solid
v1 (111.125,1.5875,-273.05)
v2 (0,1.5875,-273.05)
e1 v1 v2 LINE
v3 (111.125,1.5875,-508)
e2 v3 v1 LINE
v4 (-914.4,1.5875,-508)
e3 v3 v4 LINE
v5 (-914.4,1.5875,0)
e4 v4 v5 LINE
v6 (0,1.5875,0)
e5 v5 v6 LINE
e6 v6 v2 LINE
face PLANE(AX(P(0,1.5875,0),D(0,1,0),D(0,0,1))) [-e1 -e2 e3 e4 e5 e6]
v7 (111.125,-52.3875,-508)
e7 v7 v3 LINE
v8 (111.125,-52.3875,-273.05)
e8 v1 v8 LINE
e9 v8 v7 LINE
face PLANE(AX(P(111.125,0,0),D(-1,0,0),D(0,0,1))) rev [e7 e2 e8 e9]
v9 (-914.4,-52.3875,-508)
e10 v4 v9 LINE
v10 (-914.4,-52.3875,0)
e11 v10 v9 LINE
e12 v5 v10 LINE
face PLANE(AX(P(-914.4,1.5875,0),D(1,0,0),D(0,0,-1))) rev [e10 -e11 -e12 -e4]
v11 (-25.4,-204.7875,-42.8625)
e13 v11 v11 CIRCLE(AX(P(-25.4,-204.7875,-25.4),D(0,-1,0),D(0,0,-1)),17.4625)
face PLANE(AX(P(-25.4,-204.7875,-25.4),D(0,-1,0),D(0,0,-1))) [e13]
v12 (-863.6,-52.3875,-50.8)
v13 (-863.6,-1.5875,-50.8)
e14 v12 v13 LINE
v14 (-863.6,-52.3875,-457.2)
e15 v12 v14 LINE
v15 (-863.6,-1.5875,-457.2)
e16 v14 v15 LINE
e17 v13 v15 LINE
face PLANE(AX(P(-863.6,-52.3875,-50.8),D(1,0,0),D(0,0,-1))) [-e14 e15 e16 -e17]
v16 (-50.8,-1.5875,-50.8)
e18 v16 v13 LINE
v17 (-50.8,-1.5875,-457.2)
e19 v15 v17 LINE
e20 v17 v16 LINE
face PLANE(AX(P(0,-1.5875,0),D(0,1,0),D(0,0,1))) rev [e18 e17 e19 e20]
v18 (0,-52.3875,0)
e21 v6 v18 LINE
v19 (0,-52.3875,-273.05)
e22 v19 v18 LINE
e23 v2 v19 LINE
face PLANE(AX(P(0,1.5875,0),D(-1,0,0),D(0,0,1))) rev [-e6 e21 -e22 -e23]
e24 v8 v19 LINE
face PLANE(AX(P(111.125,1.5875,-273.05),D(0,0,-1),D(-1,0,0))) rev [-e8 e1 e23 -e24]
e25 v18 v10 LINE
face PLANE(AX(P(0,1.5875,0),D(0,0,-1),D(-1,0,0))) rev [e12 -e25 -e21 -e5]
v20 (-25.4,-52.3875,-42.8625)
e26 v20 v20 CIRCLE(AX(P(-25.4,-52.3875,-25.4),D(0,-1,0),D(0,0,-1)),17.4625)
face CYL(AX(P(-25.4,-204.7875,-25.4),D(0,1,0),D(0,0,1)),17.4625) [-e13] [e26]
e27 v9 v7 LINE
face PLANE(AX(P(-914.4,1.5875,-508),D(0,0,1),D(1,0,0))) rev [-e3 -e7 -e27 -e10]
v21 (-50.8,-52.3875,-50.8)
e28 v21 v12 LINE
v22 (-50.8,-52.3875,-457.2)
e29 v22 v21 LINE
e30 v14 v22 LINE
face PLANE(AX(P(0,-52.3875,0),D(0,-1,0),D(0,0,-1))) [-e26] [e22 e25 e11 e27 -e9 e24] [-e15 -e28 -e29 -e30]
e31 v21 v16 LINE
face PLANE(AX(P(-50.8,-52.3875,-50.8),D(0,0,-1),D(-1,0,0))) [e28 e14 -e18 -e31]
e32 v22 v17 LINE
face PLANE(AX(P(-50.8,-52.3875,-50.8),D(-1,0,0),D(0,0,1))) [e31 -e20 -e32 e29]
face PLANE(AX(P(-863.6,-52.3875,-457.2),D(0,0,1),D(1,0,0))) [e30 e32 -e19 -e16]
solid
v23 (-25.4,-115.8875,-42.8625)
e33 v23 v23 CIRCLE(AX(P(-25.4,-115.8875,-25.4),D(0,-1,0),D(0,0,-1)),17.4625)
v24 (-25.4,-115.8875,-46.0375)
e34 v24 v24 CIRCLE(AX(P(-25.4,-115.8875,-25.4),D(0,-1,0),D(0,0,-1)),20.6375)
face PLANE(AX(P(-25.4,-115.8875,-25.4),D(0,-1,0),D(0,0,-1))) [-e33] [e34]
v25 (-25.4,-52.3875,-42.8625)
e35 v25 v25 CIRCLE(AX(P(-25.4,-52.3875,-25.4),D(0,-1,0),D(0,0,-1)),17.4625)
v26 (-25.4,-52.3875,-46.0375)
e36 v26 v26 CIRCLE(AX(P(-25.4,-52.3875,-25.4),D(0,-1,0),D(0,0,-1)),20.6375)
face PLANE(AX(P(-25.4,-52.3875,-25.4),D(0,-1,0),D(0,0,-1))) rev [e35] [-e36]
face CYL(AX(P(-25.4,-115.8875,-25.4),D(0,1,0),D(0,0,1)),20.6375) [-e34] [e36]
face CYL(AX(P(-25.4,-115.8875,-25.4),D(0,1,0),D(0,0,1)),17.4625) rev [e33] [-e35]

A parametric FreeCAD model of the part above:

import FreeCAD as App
import Part
import Sketcher
Q = App.Units.Quantity


def add_polygon(sketch, points):
    """Adds a closed chain of lines whose ends are joined by coincident constraints."""
    first, n = sketch.GeometryCount, len(points)
    for a, b in zip(points, points[1:] + points[:1]):
        sketch.addGeometry(Part.LineSegment(App.Vector(*a, 0), App.Vector(*b, 0)), False)
    for i in range(n):
        sketch.addConstraint(Sketcher.Constraint("Coincident", first + i, 2, first + (i + 1) % n, 1))

doc = App.newDocument("Part")
body = doc.addObject("PartDesign::Body", "Body")

# Sketch on XZ plane
sketch1 = body.newObject("Sketcher::SketchObject", "Sketch")
sketch1.AttachmentSupport = (doc.getObject("XZ_Plane"), [""])
sketch1.MapMode = "FlatFace"
add_polygon(sketch1, [(-914, -508), (-914, 0), (0, 0), (0, -508)])  # lines 0-3
sketch1.addConstraint([
    Sketcher.Constraint("Vertical", 0),
    Sketcher.Constraint("Horizontal", 1),
    Sketcher.Constraint("Vertical", 2),
    Sketcher.Constraint("Horizontal", 3),
    Sketcher.Constraint("Coincident", 1, 2, -1, 1),
    Sketcher.Constraint("DistanceX", 1, 1, 1, 2, Q("36 in")),
    Sketcher.Constraint("DistanceY", 0, 1, 0, 2, Q("20 in")),
])
pad1 = body.newObject("PartDesign::Pad", "Pad")
pad1.Profile = sketch1
pad1.Length = Q("0.125 in")
pad1.Midplane = True

# Sketch on XZ plane
sketch2 = body.newObject("Sketcher::SketchObject", "Sketch001")
sketch2.AttachmentSupport = (doc.getObject("XZ_Plane"), [""])
sketch2.MapMode = "FlatFace"
sketch2.AttachmentOffset = App.Placement(App.Vector(0, 0, 0.0625 * 25.4), App.Rotation())
add_polygon(sketch2, [(-914, 0), (-914, -508), (0, -508), (0, 0)])  # lines 0-3
add_polygon(sketch2, [(-51, -457), (-864, -457), (-864, -51), (-51, -51)])  # lines 4-7
sketch2.addConstraint([
    Sketcher.Constraint("Vertical", 0),
    Sketcher.Constraint("Horizontal", 1),
    Sketcher.Constraint("Vertical", 2),
    Sketcher.Constraint("Horizontal", 3),
    Sketcher.Constraint("Horizontal", 4),
    Sketcher.Constraint("Vertical", 5),
    Sketcher.Constraint("Horizontal", 6),
    Sketcher.Constraint("Vertical", 7),
    Sketcher.Constraint("Coincident", 2, 2, -1, 1),
    Sketcher.Constraint("DistanceX", 1, 1, 1, 2, Q("36 in")),
    Sketcher.Constraint("DistanceX", 4, 2, 4, 1, Q("32 in")),
    Sketcher.Constraint("DistanceY", 0, 2, 0, 1, Q("20 in")),
    Sketcher.Constraint("DistanceY", 5, 1, 5, 2, Q("16 in")),
    Sketcher.Constraint("DistanceX", 4, 2, -1, 1, Q("34 in")),
    Sketcher.Constraint("DistanceY", 4, 2, -1, 1, Q("18 in")),
])
pad2 = body.newObject("PartDesign::Pad", "Pad001")
pad2.Profile = sketch2
pad2.Length = Q("2 in")

# Sketch on XZ plane
sketch3 = body.newObject("Sketcher::SketchObject", "Sketch002")
sketch3.AttachmentSupport = (doc.getObject("XZ_Plane"), [""])
sketch3.MapMode = "FlatFace"
sketch3.AttachmentOffset = App.Placement(App.Vector(0, 0, 2.0625 * 25.4), App.Rotation())
sketch3.addGeometry(Part.Circle(App.Vector(-25, -25, 0), App.Vector(0, 0, 1), 17), False)
sketch3.addConstraint([
    Sketcher.Constraint("Diameter", 0, Q("1.375 in")),
    Sketcher.Constraint("DistanceX", 0, 3, -1, 1, Q("1 in")),
    Sketcher.Constraint("DistanceY", 0, 3, -1, 1, Q("1 in")),
])
pad3 = body.newObject("PartDesign::Pad", "Pad002")
pad3.Profile = sketch3
pad3.Length = Q("6 in")

# Sketch on YZ plane
sketch4 = body.newObject("Sketcher::SketchObject", "Sketch003")
sketch4.AttachmentSupport = (doc.getObject("YZ_Plane"), [""])
sketch4.MapMode = "FlatFace"
add_polygon(sketch4, [(2, -273), (-52, -273), (-52, -508), (2, -508)])  # lines 0-3
sketch4.addConstraint([
    Sketcher.Constraint("Horizontal", 0),
    Sketcher.Constraint("Vertical", 1),
    Sketcher.Constraint("Horizontal", 2),
    Sketcher.Constraint("Vertical", 3),
    Sketcher.Constraint("DistanceY", 1, 2, -1, 1, Q("20 in")),
    Sketcher.Constraint("DistanceY", 1, 2, 1, 1, Q("9.25 in")),
    Sketcher.Constraint("DistanceX", 0, 2, 0, 1, Q("2.125 in")),
    Sketcher.Constraint("DistanceX", 0, 2, -1, 1, Q("2.0625 in")),
])
pad4 = body.newObject("PartDesign::Pad", "Pad003")
pad4.Profile = sketch4
pad4.Length = Q("4.375 in")
body2 = doc.addObject("PartDesign::Body", "Body001")

# Sketch on XZ plane
sketch5 = body2.newObject("Sketcher::SketchObject", "Sketch004")
sketch5.AttachmentSupport = (doc.getObject("XZ_Plane001"), [""])
sketch5.MapMode = "FlatFace"
sketch5.AttachmentOffset = App.Placement(App.Vector(0, 0, 2.0625 * 25.4), App.Rotation())
sketch5.addGeometry([
    Part.Circle(App.Vector(-25, -25, 0), App.Vector(0, 0, 1), 21),
    Part.Circle(App.Vector(-25, -25, 0), App.Vector(0, 0, 1), 17),
], False)
sketch5.addConstraint([
    Sketcher.Constraint("Coincident", 1, 3, 0, 3),
    Sketcher.Constraint("Diameter", 0, Q("1.625 in")),
    Sketcher.Constraint("Diameter", 1, Q("1.375 in")),
    Sketcher.Constraint("DistanceX", 0, 3, -1, 1, Q("1 in")),
    Sketcher.Constraint("DistanceY", 0, 3, -1, 1, Q("1 in")),
])
pad5 = body2.newObject("PartDesign::Pad", "Pad004")
pad5.Profile = sketch5
pad5.Length = Q("2.5 in")

doc.recompute()
